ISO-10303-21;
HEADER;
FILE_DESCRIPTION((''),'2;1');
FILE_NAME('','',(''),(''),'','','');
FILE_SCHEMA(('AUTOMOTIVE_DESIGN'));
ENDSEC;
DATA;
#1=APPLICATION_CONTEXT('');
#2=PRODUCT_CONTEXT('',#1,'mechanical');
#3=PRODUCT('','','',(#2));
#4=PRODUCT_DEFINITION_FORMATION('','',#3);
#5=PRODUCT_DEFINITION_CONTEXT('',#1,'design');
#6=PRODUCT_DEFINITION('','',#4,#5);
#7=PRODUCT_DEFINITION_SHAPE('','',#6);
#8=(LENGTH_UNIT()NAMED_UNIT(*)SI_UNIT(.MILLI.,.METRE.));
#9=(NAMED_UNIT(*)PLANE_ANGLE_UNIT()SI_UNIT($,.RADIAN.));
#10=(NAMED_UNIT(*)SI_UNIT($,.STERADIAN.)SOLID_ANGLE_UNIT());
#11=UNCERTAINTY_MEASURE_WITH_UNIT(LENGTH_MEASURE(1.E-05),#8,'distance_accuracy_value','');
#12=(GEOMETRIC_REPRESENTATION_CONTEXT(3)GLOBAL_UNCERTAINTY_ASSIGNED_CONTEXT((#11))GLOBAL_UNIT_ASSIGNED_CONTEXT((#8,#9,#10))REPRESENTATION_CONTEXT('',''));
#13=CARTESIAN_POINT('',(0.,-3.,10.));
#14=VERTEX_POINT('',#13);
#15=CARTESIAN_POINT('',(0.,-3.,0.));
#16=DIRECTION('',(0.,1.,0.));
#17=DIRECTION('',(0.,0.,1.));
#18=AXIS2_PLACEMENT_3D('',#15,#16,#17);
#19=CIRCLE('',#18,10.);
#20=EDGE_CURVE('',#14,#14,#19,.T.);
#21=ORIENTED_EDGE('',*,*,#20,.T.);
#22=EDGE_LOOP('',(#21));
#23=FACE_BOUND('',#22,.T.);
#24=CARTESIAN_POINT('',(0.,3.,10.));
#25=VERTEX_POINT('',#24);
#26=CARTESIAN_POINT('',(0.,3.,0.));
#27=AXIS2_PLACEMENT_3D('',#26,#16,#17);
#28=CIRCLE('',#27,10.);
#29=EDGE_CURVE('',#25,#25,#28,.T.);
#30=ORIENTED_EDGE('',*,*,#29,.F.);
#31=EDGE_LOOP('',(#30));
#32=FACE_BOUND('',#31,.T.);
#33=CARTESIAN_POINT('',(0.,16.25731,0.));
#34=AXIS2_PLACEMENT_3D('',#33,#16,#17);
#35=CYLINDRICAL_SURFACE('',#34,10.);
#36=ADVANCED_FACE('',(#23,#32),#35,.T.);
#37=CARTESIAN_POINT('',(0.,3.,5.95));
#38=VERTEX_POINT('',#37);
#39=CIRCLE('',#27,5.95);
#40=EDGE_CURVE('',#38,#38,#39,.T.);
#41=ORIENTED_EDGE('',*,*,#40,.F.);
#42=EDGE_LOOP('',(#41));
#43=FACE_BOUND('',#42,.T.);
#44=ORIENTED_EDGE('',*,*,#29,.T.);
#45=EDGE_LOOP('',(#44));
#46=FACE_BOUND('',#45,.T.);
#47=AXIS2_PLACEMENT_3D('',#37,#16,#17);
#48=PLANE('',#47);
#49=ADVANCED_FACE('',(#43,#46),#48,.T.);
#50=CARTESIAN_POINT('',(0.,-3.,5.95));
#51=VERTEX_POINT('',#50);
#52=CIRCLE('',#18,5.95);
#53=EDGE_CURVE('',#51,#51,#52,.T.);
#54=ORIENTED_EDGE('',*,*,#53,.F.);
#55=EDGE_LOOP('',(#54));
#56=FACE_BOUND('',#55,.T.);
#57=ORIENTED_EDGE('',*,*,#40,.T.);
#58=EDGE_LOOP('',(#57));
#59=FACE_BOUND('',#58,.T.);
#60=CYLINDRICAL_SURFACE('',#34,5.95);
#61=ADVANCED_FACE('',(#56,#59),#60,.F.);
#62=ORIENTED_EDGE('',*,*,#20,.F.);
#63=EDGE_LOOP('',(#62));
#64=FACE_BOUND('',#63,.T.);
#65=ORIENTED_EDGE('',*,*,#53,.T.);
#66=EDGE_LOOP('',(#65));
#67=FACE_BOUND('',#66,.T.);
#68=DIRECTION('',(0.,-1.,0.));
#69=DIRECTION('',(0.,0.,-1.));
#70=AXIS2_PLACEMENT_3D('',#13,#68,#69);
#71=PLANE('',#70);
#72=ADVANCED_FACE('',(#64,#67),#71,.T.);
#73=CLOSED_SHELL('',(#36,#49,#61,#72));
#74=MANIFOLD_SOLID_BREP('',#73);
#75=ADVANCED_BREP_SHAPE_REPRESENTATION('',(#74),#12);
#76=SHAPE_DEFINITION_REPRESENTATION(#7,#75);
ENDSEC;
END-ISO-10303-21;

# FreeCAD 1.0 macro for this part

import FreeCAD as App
import Part
import Sketcher


def add_polygon(sketch, points):
    """Adds a closed chain of lines whose ends are joined by coincident constraints."""
    first, n = sketch.GeometryCount, len(points)
    for a, b in zip(points, points[1:] + points[:1]):
        sketch.addGeometry(Part.LineSegment(App.Vector(*a, 0), App.Vector(*b, 0)), False)
    for i in range(n):
        sketch.addConstraint(Sketcher.Constraint("Coincident", first + i, 2, first + (i + 1) % n, 1))

doc = App.newDocument("Part")
body = doc.addObject("PartDesign::Body", "Body")

# Sketch on YZ plane
sketch1 = doc.addObject("Sketcher::SketchObject", "Sketch")
body.addObject(sketch1)
sketch1.AttachmentSupport = (doc.YZ_Plane, [""])
sketch1.MapMode = "FlatFace"
add_polygon(sketch1, [(3, 10), (-3, 10), (-3, 5.95), (3, 5.95)])  # lines 0-3
sketch1.addConstraint([
    Sketcher.Constraint("Horizontal", 0),
    Sketcher.Constraint("Vertical", 1),
    Sketcher.Constraint("Horizontal", 2),
    Sketcher.Constraint("Vertical", 3),
    Sketcher.Constraint("DistanceX", 0, 2, 0, 1, 6.0),
    Sketcher.Constraint("DistanceX", 0, 2, -1, 1, 3.0),
    Sketcher.Constraint("DistanceY", -1, 1, 0, 2, 10.0),
    Sketcher.Constraint("DistanceY", 1, 2, 1, 1, 4.05),
])
revolution = doc.addObject("PartDesign::Revolution", "Revolution")
body.addObject(revolution)
revolution.Profile = sketch1
revolution.ReferenceAxis = (sketch1, ["H_Axis"])
revolution.Angle = 360

doc.recompute()
